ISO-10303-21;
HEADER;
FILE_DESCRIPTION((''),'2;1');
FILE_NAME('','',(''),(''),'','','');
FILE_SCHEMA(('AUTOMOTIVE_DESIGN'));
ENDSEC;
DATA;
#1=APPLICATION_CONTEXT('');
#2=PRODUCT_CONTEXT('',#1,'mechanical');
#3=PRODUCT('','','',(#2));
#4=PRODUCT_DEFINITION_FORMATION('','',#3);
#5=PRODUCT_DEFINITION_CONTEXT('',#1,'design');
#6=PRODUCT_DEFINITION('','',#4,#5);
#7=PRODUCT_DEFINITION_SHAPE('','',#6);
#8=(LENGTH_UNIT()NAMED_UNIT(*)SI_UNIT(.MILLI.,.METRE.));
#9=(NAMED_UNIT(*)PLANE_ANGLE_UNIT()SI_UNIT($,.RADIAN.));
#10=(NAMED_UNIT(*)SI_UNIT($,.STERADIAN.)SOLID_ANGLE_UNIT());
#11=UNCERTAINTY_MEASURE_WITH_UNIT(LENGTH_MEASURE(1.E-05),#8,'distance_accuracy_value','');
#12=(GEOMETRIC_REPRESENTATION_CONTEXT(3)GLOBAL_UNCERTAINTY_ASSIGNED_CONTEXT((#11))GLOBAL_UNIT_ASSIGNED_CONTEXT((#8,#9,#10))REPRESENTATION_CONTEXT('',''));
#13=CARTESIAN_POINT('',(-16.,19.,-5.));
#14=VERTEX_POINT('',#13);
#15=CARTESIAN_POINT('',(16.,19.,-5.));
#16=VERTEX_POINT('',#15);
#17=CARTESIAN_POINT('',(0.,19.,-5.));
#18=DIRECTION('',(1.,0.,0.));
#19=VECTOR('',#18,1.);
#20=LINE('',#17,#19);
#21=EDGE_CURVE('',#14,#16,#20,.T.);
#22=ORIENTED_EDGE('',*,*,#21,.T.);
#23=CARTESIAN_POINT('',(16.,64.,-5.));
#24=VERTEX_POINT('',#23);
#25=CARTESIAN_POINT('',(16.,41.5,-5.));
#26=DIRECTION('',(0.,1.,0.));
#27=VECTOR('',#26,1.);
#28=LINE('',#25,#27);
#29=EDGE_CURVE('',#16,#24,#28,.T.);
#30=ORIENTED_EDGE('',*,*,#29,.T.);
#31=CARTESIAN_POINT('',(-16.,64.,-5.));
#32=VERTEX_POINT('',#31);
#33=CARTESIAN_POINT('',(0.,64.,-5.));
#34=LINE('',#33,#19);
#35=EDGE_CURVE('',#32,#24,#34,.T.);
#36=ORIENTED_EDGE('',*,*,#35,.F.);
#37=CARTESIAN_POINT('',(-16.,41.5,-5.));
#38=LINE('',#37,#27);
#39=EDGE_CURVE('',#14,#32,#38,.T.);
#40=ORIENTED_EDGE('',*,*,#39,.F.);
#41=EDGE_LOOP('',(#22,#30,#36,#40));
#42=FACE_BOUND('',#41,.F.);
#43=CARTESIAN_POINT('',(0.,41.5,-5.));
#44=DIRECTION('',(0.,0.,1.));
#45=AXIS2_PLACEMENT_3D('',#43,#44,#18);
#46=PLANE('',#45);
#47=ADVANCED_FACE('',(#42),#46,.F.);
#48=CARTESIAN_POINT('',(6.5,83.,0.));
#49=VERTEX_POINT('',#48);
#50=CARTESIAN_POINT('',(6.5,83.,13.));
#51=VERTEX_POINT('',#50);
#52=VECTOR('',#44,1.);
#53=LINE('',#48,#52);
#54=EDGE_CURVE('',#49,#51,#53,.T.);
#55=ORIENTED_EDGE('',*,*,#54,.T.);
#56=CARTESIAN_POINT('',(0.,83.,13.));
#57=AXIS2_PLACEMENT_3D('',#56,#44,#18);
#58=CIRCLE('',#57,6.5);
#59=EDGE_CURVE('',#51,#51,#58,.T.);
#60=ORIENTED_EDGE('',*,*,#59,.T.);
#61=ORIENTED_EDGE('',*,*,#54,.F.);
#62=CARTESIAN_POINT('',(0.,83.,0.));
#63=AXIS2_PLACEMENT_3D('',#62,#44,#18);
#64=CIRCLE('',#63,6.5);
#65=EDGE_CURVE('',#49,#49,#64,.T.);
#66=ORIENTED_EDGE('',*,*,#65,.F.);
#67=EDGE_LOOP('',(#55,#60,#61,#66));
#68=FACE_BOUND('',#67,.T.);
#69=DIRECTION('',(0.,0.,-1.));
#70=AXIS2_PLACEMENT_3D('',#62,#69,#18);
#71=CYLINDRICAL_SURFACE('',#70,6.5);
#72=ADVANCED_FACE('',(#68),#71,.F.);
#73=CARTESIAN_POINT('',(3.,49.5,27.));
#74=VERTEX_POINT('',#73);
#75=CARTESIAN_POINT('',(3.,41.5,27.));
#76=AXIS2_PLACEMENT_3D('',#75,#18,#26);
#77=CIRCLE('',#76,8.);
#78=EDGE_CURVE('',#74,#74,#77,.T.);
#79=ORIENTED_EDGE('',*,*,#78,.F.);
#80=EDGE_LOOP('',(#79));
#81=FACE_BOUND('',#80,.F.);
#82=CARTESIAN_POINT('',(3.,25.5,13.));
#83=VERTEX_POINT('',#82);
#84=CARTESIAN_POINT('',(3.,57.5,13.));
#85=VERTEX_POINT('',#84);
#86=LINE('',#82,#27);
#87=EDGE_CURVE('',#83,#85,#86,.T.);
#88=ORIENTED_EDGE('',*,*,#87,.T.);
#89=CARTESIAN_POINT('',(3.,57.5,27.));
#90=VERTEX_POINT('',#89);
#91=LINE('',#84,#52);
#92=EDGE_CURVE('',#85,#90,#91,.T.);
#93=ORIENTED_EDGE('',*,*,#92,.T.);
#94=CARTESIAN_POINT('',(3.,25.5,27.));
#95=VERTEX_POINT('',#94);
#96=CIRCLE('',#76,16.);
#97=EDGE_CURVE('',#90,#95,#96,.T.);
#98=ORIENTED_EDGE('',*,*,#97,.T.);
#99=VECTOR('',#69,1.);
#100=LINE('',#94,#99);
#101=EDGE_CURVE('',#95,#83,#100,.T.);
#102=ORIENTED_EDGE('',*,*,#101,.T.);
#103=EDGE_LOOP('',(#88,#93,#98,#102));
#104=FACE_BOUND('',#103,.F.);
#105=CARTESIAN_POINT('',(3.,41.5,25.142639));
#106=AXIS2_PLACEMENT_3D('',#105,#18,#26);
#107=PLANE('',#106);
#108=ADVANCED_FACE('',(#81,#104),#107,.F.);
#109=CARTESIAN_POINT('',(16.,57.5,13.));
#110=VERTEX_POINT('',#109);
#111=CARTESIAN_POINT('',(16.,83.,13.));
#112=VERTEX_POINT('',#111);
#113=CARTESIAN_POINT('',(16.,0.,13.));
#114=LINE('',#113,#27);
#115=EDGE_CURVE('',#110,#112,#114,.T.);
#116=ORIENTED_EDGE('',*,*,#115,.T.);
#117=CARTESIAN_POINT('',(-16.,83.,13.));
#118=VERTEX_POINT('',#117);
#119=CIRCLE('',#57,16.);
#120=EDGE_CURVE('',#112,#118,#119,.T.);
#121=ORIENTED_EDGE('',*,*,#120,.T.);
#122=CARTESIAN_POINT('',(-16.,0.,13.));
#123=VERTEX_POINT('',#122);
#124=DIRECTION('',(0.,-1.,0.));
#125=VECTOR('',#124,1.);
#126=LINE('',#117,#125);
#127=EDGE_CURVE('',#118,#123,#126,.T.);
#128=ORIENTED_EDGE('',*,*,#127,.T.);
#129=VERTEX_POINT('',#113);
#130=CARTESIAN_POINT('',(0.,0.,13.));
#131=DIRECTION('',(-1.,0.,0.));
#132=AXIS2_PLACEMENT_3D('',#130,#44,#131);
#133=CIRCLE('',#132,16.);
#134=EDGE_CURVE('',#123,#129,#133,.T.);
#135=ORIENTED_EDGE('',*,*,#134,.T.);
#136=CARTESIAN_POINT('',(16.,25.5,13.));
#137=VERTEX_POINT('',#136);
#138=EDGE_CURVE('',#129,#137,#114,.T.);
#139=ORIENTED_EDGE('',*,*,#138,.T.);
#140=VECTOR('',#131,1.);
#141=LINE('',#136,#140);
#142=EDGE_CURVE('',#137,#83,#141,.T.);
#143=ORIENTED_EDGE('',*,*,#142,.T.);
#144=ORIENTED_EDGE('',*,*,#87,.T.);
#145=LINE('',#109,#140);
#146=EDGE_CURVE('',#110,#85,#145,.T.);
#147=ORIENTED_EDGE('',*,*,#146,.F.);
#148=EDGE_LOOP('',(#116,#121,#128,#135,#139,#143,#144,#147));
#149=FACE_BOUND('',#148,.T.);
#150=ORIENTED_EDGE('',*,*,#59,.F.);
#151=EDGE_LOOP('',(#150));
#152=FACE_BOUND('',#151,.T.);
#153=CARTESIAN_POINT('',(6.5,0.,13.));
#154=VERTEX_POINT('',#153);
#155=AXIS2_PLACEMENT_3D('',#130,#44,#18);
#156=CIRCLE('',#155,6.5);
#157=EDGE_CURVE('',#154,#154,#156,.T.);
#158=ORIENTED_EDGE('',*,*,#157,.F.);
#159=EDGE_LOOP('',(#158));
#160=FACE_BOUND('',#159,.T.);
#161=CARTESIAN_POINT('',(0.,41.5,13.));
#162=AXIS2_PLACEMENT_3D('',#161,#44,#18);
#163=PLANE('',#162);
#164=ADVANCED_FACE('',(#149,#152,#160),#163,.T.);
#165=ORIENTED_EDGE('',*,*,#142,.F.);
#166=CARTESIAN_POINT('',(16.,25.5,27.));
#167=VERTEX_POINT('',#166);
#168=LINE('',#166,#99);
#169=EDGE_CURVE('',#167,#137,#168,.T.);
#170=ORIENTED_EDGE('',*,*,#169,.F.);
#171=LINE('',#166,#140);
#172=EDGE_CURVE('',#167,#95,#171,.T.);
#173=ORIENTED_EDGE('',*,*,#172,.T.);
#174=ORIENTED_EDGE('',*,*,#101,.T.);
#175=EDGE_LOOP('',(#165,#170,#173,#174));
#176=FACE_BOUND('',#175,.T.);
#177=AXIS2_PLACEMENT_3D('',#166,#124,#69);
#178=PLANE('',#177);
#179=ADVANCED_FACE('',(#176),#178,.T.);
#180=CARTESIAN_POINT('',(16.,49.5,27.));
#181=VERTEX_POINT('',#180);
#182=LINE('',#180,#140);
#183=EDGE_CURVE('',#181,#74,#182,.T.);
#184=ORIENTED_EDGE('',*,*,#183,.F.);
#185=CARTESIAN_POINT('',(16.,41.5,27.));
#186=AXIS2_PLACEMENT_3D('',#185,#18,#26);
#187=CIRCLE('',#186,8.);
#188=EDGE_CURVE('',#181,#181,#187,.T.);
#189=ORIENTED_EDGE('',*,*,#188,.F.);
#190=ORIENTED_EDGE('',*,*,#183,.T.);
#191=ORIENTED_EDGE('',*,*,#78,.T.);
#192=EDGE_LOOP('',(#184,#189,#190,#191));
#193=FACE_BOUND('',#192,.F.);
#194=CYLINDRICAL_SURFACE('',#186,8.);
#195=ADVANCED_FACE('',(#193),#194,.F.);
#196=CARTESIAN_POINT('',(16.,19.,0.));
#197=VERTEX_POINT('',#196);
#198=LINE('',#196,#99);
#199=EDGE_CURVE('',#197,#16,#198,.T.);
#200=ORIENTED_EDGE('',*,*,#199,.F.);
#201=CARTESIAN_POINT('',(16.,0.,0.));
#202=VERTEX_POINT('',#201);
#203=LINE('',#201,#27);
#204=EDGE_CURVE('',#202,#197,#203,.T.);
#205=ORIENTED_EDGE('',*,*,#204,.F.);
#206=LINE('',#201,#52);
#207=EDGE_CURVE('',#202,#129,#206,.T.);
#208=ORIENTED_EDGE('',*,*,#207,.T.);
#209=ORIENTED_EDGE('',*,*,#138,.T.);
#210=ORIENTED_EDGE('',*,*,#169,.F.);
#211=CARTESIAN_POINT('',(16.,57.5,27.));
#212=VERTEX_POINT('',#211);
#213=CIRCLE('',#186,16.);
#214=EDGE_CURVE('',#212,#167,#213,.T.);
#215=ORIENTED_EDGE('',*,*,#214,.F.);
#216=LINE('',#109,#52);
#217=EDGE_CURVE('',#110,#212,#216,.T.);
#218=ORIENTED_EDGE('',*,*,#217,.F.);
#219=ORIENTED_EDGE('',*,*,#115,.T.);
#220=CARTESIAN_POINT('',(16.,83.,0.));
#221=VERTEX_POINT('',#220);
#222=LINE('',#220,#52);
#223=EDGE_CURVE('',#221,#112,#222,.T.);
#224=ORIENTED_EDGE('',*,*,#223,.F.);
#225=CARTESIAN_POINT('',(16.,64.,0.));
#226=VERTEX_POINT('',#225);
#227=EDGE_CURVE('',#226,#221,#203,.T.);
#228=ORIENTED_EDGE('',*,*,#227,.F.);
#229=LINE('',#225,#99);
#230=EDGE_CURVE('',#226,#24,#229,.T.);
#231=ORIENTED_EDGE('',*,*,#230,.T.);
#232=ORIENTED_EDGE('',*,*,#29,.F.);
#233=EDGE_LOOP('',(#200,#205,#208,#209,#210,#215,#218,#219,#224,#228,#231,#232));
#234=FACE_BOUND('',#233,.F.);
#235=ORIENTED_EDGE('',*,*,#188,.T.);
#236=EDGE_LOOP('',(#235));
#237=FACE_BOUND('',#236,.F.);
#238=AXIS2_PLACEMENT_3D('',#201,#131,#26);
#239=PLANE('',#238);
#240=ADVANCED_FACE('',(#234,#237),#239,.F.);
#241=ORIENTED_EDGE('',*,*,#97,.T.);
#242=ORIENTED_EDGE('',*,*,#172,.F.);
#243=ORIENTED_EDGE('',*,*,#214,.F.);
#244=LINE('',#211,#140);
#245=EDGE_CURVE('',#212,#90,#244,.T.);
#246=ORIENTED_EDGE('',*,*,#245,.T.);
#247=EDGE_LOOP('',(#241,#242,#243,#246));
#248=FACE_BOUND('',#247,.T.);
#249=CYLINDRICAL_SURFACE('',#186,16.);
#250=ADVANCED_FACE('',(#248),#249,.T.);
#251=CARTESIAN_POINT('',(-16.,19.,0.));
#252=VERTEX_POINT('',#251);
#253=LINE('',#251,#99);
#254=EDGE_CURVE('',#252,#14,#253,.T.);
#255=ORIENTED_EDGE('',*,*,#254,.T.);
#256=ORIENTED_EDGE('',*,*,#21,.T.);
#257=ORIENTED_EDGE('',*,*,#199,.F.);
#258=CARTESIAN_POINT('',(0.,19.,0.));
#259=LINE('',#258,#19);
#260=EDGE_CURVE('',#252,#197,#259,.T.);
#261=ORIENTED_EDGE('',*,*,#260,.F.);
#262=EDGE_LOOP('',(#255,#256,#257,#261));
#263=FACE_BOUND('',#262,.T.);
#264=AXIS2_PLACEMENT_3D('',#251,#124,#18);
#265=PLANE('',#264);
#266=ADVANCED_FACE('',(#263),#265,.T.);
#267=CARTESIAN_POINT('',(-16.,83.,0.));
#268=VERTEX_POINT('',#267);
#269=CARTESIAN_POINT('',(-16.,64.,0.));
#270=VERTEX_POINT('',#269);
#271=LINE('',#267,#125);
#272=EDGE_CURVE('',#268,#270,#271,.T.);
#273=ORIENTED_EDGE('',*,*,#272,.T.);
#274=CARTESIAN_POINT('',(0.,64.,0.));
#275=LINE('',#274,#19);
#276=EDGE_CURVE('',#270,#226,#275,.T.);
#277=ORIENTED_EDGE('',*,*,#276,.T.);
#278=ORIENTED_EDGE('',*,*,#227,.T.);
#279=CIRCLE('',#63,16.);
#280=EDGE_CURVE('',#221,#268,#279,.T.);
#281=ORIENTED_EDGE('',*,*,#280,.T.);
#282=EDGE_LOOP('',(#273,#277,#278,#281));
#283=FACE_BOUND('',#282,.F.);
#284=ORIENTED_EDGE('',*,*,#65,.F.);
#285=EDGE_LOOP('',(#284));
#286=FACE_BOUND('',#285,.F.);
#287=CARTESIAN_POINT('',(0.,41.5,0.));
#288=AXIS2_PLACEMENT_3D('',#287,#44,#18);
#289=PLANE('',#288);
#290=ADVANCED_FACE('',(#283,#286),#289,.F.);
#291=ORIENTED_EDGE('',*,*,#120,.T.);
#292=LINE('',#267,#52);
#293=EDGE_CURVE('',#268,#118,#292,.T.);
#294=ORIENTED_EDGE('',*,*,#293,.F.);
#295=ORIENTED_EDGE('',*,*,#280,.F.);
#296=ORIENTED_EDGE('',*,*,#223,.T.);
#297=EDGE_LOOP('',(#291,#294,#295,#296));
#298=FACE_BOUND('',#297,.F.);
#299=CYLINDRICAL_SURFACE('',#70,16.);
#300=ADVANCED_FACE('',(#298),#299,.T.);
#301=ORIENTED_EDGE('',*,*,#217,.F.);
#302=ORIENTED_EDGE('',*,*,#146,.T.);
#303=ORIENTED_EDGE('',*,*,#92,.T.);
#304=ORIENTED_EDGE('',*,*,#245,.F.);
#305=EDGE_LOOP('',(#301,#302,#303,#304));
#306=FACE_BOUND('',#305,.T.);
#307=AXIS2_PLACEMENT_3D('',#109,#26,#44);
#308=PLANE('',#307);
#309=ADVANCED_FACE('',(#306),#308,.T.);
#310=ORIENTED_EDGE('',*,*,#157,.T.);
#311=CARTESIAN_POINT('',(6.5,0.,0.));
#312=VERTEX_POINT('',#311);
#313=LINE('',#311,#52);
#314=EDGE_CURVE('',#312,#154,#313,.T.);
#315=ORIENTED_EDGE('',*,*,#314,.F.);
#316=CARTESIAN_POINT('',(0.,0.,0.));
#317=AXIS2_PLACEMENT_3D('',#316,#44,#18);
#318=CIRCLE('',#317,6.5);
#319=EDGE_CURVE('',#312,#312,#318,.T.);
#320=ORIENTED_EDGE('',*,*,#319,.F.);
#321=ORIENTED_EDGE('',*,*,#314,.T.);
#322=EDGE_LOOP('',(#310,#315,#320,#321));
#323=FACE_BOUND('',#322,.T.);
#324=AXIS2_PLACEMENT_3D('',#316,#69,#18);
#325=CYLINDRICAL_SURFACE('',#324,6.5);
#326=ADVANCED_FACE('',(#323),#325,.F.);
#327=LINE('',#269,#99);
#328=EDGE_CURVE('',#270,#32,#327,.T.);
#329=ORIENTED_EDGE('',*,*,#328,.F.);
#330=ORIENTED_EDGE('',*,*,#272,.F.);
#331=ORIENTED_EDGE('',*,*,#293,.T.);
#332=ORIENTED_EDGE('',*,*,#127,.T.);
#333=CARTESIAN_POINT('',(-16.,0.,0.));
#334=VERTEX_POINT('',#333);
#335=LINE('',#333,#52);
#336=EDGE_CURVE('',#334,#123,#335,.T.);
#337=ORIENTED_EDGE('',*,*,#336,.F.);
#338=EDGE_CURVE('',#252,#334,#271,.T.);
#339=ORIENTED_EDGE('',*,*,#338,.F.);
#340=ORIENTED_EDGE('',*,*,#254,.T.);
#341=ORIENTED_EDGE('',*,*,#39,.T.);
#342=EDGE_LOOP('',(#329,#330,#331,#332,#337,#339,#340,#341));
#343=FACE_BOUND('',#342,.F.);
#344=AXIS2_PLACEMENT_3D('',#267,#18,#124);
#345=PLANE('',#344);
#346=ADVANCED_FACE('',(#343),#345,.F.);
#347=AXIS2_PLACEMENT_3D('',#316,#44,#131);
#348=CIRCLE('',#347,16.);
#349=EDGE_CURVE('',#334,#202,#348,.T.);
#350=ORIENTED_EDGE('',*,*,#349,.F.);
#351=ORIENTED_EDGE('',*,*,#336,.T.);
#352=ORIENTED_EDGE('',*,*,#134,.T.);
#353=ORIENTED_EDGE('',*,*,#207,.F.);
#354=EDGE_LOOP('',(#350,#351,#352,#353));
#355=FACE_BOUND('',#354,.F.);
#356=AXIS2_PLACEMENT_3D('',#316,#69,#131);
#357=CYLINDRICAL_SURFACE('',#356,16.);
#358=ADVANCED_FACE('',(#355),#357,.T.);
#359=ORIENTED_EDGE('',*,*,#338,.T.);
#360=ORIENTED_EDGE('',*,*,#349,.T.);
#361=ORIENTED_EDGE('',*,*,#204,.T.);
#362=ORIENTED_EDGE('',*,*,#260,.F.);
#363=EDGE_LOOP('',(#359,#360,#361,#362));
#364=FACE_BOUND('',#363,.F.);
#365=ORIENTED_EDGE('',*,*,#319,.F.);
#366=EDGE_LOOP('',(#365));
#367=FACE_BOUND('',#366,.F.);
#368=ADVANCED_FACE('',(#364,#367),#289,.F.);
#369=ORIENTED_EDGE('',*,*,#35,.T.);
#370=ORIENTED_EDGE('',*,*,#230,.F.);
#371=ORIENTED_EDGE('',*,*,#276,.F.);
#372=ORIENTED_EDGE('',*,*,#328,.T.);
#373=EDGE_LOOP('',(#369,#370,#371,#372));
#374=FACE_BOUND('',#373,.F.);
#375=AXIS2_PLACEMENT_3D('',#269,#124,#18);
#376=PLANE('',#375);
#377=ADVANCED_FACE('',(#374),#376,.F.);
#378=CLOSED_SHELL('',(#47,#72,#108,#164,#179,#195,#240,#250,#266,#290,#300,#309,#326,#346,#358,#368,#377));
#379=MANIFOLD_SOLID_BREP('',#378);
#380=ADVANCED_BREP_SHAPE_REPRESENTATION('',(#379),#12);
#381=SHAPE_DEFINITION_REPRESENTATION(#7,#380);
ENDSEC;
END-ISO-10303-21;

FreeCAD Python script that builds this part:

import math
import FreeCAD as App
import Part
import Sketcher


def add_polygon(sketch, points):
    """Adds a closed chain of lines whose ends are joined by coincident constraints."""
    first, n = sketch.GeometryCount, len(points)
    for a, b in zip(points, points[1:] + points[:1]):
        sketch.addGeometry(Part.LineSegment(App.Vector(*a, 0), App.Vector(*b, 0)), False)
    for i in range(n):
        sketch.addConstraint(Sketcher.Constraint("Coincident", first + i, 2, first + (i + 1) % n, 1))

doc = App.newDocument("Part")
body = doc.addObject("PartDesign::Body", "Body")

sketch1 = body.newObject("Sketcher::SketchObject", "Sketch")
sketch1.AttachmentSupport = (doc.getObject("XY_Plane"), [""])
sketch1.MapMode = "FlatFace"
sketch1.addGeometry([
    Part.ArcOfCircle(Part.Circle(App.Vector(0, 0, 0), App.Vector(0, 0, 1), 16), math.radians(180), math.radians(360)),
    Part.LineSegment(App.Vector(16, 0, 0), App.Vector(16, 83, 0)),
    Part.ArcOfCircle(Part.Circle(App.Vector(0, 83, 0), App.Vector(0, 0, 1), 16), math.radians(0), math.radians(180)),
    Part.LineSegment(App.Vector(-16, 83, 0), App.Vector(-16, 0, 0)),
    Part.Circle(App.Vector(0, 0, 0), App.Vector(0, 0, 1), 6.5),
    Part.Circle(App.Vector(0, 83, 0), App.Vector(0, 0, 1), 6.5),
], False)
sketch1.addConstraint([
    Sketcher.Constraint("Tangent", 0, 2, 1, 1),
    Sketcher.Constraint("Tangent", 1, 2, 2, 1),
    Sketcher.Constraint("Tangent", 2, 2, 3, 1),
    Sketcher.Constraint("Tangent", 3, 2, 0, 1),
    Sketcher.Constraint("Vertical", 1),
    Sketcher.Constraint("Vertical", 3),
    Sketcher.Constraint("Coincident", 0, 3, -1, 1),
    Sketcher.Constraint("Coincident", 4, 3, -1, 1),
    Sketcher.Constraint("Coincident", 5, 3, 2, 3),
    Sketcher.Constraint("Equal", 4, 5),
    Sketcher.Constraint("Diameter", 4, 13.0),
    Sketcher.Constraint("Radius", 0, 16.0),
    Sketcher.Constraint("DistanceY", 1, 1, 1, 2, 83.0),
])
pad1 = body.newObject("PartDesign::Pad", "Pad")
pad1.Profile = sketch1
pad1.Length = 13

sketch2 = body.newObject("Sketcher::SketchObject", "Sketch001")
sketch2.AttachmentSupport = (doc.getObject("XY_Plane"), [""])
sketch2.MapMode = "FlatFace"
add_polygon(sketch2, [(-16, 64), (-16, 19), (16, 19), (16, 64)])
sketch2.addConstraint([
    Sketcher.Constraint("Vertical", 0),
    Sketcher.Constraint("Horizontal", 1),
    Sketcher.Constraint("Vertical", 2),
    Sketcher.Constraint("Horizontal", 3),
    Sketcher.Constraint("DistanceX", 1, 1, 1, 2, 32.0),
    Sketcher.Constraint("DistanceY", 0, 2, 0, 1, 45.0),
    Sketcher.Constraint("DistanceX", 0, 2, -1, 1, 16.0),
    Sketcher.Constraint("DistanceY", -1, 1, 0, 2, 19.0),
])
pad2 = body.newObject("PartDesign::Pad", "Pad001")
pad2.Profile = sketch2
pad2.Length = 5
pad2.Reversed = True

sketch3 = body.newObject("Sketcher::SketchObject", "Sketch002")
sketch3.AttachmentSupport = (doc.getObject("YZ_Plane"), [""])
sketch3.MapMode = "FlatFace"
sketch3.AttachmentOffset = App.Placement(App.Vector(0, 0, 16), App.Rotation())
sketch3.addGeometry([
    Part.LineSegment(App.Vector(57.5, 13, 0), App.Vector(57.5, 27, 0)),
    Part.ArcOfCircle(Part.Circle(App.Vector(41.5, 27, 0), App.Vector(0, 0, 1), 16), math.radians(0), math.radians(180)),
    Part.LineSegment(App.Vector(25.5, 27, 0), App.Vector(25.5, 13, 0)),
    Part.LineSegment(App.Vector(25.5, 13, 0), App.Vector(57.5, 13, 0)),
    Part.Circle(App.Vector(41.5, 27, 0), App.Vector(0, 0, 1), 8),
], False)
sketch3.addConstraint([
    Sketcher.Constraint("Tangent", 0, 2, 1, 1),
    Sketcher.Constraint("Tangent", 1, 2, 2, 1),
    Sketcher.Constraint("Coincident", 2, 2, 3, 1),
    Sketcher.Constraint("Coincident", 3, 2, 0, 1),
    Sketcher.Constraint("Vertical", 0),
    Sketcher.Constraint("Vertical", 2),
    Sketcher.Constraint("Horizontal", 3),
    Sketcher.Constraint("Coincident", 4, 3, 1, 3),
    Sketcher.Constraint("Diameter", 4, 16.0),
    Sketcher.Constraint("Radius", 1, 16.0),
    Sketcher.Constraint("DistanceY", 0, 1, 0, 2, 14.0),
    Sketcher.Constraint("DistanceY", -1, 1, 1, 3, 27.0),
    Sketcher.Constraint("DistanceX", -1, 1, 1, 3, 41.5),
])
pad3 = body.newObject("PartDesign::Pad", "Pad002")
pad3.Profile = sketch3
pad3.Length = 13
pad3.Reversed = True

doc.recompute()
